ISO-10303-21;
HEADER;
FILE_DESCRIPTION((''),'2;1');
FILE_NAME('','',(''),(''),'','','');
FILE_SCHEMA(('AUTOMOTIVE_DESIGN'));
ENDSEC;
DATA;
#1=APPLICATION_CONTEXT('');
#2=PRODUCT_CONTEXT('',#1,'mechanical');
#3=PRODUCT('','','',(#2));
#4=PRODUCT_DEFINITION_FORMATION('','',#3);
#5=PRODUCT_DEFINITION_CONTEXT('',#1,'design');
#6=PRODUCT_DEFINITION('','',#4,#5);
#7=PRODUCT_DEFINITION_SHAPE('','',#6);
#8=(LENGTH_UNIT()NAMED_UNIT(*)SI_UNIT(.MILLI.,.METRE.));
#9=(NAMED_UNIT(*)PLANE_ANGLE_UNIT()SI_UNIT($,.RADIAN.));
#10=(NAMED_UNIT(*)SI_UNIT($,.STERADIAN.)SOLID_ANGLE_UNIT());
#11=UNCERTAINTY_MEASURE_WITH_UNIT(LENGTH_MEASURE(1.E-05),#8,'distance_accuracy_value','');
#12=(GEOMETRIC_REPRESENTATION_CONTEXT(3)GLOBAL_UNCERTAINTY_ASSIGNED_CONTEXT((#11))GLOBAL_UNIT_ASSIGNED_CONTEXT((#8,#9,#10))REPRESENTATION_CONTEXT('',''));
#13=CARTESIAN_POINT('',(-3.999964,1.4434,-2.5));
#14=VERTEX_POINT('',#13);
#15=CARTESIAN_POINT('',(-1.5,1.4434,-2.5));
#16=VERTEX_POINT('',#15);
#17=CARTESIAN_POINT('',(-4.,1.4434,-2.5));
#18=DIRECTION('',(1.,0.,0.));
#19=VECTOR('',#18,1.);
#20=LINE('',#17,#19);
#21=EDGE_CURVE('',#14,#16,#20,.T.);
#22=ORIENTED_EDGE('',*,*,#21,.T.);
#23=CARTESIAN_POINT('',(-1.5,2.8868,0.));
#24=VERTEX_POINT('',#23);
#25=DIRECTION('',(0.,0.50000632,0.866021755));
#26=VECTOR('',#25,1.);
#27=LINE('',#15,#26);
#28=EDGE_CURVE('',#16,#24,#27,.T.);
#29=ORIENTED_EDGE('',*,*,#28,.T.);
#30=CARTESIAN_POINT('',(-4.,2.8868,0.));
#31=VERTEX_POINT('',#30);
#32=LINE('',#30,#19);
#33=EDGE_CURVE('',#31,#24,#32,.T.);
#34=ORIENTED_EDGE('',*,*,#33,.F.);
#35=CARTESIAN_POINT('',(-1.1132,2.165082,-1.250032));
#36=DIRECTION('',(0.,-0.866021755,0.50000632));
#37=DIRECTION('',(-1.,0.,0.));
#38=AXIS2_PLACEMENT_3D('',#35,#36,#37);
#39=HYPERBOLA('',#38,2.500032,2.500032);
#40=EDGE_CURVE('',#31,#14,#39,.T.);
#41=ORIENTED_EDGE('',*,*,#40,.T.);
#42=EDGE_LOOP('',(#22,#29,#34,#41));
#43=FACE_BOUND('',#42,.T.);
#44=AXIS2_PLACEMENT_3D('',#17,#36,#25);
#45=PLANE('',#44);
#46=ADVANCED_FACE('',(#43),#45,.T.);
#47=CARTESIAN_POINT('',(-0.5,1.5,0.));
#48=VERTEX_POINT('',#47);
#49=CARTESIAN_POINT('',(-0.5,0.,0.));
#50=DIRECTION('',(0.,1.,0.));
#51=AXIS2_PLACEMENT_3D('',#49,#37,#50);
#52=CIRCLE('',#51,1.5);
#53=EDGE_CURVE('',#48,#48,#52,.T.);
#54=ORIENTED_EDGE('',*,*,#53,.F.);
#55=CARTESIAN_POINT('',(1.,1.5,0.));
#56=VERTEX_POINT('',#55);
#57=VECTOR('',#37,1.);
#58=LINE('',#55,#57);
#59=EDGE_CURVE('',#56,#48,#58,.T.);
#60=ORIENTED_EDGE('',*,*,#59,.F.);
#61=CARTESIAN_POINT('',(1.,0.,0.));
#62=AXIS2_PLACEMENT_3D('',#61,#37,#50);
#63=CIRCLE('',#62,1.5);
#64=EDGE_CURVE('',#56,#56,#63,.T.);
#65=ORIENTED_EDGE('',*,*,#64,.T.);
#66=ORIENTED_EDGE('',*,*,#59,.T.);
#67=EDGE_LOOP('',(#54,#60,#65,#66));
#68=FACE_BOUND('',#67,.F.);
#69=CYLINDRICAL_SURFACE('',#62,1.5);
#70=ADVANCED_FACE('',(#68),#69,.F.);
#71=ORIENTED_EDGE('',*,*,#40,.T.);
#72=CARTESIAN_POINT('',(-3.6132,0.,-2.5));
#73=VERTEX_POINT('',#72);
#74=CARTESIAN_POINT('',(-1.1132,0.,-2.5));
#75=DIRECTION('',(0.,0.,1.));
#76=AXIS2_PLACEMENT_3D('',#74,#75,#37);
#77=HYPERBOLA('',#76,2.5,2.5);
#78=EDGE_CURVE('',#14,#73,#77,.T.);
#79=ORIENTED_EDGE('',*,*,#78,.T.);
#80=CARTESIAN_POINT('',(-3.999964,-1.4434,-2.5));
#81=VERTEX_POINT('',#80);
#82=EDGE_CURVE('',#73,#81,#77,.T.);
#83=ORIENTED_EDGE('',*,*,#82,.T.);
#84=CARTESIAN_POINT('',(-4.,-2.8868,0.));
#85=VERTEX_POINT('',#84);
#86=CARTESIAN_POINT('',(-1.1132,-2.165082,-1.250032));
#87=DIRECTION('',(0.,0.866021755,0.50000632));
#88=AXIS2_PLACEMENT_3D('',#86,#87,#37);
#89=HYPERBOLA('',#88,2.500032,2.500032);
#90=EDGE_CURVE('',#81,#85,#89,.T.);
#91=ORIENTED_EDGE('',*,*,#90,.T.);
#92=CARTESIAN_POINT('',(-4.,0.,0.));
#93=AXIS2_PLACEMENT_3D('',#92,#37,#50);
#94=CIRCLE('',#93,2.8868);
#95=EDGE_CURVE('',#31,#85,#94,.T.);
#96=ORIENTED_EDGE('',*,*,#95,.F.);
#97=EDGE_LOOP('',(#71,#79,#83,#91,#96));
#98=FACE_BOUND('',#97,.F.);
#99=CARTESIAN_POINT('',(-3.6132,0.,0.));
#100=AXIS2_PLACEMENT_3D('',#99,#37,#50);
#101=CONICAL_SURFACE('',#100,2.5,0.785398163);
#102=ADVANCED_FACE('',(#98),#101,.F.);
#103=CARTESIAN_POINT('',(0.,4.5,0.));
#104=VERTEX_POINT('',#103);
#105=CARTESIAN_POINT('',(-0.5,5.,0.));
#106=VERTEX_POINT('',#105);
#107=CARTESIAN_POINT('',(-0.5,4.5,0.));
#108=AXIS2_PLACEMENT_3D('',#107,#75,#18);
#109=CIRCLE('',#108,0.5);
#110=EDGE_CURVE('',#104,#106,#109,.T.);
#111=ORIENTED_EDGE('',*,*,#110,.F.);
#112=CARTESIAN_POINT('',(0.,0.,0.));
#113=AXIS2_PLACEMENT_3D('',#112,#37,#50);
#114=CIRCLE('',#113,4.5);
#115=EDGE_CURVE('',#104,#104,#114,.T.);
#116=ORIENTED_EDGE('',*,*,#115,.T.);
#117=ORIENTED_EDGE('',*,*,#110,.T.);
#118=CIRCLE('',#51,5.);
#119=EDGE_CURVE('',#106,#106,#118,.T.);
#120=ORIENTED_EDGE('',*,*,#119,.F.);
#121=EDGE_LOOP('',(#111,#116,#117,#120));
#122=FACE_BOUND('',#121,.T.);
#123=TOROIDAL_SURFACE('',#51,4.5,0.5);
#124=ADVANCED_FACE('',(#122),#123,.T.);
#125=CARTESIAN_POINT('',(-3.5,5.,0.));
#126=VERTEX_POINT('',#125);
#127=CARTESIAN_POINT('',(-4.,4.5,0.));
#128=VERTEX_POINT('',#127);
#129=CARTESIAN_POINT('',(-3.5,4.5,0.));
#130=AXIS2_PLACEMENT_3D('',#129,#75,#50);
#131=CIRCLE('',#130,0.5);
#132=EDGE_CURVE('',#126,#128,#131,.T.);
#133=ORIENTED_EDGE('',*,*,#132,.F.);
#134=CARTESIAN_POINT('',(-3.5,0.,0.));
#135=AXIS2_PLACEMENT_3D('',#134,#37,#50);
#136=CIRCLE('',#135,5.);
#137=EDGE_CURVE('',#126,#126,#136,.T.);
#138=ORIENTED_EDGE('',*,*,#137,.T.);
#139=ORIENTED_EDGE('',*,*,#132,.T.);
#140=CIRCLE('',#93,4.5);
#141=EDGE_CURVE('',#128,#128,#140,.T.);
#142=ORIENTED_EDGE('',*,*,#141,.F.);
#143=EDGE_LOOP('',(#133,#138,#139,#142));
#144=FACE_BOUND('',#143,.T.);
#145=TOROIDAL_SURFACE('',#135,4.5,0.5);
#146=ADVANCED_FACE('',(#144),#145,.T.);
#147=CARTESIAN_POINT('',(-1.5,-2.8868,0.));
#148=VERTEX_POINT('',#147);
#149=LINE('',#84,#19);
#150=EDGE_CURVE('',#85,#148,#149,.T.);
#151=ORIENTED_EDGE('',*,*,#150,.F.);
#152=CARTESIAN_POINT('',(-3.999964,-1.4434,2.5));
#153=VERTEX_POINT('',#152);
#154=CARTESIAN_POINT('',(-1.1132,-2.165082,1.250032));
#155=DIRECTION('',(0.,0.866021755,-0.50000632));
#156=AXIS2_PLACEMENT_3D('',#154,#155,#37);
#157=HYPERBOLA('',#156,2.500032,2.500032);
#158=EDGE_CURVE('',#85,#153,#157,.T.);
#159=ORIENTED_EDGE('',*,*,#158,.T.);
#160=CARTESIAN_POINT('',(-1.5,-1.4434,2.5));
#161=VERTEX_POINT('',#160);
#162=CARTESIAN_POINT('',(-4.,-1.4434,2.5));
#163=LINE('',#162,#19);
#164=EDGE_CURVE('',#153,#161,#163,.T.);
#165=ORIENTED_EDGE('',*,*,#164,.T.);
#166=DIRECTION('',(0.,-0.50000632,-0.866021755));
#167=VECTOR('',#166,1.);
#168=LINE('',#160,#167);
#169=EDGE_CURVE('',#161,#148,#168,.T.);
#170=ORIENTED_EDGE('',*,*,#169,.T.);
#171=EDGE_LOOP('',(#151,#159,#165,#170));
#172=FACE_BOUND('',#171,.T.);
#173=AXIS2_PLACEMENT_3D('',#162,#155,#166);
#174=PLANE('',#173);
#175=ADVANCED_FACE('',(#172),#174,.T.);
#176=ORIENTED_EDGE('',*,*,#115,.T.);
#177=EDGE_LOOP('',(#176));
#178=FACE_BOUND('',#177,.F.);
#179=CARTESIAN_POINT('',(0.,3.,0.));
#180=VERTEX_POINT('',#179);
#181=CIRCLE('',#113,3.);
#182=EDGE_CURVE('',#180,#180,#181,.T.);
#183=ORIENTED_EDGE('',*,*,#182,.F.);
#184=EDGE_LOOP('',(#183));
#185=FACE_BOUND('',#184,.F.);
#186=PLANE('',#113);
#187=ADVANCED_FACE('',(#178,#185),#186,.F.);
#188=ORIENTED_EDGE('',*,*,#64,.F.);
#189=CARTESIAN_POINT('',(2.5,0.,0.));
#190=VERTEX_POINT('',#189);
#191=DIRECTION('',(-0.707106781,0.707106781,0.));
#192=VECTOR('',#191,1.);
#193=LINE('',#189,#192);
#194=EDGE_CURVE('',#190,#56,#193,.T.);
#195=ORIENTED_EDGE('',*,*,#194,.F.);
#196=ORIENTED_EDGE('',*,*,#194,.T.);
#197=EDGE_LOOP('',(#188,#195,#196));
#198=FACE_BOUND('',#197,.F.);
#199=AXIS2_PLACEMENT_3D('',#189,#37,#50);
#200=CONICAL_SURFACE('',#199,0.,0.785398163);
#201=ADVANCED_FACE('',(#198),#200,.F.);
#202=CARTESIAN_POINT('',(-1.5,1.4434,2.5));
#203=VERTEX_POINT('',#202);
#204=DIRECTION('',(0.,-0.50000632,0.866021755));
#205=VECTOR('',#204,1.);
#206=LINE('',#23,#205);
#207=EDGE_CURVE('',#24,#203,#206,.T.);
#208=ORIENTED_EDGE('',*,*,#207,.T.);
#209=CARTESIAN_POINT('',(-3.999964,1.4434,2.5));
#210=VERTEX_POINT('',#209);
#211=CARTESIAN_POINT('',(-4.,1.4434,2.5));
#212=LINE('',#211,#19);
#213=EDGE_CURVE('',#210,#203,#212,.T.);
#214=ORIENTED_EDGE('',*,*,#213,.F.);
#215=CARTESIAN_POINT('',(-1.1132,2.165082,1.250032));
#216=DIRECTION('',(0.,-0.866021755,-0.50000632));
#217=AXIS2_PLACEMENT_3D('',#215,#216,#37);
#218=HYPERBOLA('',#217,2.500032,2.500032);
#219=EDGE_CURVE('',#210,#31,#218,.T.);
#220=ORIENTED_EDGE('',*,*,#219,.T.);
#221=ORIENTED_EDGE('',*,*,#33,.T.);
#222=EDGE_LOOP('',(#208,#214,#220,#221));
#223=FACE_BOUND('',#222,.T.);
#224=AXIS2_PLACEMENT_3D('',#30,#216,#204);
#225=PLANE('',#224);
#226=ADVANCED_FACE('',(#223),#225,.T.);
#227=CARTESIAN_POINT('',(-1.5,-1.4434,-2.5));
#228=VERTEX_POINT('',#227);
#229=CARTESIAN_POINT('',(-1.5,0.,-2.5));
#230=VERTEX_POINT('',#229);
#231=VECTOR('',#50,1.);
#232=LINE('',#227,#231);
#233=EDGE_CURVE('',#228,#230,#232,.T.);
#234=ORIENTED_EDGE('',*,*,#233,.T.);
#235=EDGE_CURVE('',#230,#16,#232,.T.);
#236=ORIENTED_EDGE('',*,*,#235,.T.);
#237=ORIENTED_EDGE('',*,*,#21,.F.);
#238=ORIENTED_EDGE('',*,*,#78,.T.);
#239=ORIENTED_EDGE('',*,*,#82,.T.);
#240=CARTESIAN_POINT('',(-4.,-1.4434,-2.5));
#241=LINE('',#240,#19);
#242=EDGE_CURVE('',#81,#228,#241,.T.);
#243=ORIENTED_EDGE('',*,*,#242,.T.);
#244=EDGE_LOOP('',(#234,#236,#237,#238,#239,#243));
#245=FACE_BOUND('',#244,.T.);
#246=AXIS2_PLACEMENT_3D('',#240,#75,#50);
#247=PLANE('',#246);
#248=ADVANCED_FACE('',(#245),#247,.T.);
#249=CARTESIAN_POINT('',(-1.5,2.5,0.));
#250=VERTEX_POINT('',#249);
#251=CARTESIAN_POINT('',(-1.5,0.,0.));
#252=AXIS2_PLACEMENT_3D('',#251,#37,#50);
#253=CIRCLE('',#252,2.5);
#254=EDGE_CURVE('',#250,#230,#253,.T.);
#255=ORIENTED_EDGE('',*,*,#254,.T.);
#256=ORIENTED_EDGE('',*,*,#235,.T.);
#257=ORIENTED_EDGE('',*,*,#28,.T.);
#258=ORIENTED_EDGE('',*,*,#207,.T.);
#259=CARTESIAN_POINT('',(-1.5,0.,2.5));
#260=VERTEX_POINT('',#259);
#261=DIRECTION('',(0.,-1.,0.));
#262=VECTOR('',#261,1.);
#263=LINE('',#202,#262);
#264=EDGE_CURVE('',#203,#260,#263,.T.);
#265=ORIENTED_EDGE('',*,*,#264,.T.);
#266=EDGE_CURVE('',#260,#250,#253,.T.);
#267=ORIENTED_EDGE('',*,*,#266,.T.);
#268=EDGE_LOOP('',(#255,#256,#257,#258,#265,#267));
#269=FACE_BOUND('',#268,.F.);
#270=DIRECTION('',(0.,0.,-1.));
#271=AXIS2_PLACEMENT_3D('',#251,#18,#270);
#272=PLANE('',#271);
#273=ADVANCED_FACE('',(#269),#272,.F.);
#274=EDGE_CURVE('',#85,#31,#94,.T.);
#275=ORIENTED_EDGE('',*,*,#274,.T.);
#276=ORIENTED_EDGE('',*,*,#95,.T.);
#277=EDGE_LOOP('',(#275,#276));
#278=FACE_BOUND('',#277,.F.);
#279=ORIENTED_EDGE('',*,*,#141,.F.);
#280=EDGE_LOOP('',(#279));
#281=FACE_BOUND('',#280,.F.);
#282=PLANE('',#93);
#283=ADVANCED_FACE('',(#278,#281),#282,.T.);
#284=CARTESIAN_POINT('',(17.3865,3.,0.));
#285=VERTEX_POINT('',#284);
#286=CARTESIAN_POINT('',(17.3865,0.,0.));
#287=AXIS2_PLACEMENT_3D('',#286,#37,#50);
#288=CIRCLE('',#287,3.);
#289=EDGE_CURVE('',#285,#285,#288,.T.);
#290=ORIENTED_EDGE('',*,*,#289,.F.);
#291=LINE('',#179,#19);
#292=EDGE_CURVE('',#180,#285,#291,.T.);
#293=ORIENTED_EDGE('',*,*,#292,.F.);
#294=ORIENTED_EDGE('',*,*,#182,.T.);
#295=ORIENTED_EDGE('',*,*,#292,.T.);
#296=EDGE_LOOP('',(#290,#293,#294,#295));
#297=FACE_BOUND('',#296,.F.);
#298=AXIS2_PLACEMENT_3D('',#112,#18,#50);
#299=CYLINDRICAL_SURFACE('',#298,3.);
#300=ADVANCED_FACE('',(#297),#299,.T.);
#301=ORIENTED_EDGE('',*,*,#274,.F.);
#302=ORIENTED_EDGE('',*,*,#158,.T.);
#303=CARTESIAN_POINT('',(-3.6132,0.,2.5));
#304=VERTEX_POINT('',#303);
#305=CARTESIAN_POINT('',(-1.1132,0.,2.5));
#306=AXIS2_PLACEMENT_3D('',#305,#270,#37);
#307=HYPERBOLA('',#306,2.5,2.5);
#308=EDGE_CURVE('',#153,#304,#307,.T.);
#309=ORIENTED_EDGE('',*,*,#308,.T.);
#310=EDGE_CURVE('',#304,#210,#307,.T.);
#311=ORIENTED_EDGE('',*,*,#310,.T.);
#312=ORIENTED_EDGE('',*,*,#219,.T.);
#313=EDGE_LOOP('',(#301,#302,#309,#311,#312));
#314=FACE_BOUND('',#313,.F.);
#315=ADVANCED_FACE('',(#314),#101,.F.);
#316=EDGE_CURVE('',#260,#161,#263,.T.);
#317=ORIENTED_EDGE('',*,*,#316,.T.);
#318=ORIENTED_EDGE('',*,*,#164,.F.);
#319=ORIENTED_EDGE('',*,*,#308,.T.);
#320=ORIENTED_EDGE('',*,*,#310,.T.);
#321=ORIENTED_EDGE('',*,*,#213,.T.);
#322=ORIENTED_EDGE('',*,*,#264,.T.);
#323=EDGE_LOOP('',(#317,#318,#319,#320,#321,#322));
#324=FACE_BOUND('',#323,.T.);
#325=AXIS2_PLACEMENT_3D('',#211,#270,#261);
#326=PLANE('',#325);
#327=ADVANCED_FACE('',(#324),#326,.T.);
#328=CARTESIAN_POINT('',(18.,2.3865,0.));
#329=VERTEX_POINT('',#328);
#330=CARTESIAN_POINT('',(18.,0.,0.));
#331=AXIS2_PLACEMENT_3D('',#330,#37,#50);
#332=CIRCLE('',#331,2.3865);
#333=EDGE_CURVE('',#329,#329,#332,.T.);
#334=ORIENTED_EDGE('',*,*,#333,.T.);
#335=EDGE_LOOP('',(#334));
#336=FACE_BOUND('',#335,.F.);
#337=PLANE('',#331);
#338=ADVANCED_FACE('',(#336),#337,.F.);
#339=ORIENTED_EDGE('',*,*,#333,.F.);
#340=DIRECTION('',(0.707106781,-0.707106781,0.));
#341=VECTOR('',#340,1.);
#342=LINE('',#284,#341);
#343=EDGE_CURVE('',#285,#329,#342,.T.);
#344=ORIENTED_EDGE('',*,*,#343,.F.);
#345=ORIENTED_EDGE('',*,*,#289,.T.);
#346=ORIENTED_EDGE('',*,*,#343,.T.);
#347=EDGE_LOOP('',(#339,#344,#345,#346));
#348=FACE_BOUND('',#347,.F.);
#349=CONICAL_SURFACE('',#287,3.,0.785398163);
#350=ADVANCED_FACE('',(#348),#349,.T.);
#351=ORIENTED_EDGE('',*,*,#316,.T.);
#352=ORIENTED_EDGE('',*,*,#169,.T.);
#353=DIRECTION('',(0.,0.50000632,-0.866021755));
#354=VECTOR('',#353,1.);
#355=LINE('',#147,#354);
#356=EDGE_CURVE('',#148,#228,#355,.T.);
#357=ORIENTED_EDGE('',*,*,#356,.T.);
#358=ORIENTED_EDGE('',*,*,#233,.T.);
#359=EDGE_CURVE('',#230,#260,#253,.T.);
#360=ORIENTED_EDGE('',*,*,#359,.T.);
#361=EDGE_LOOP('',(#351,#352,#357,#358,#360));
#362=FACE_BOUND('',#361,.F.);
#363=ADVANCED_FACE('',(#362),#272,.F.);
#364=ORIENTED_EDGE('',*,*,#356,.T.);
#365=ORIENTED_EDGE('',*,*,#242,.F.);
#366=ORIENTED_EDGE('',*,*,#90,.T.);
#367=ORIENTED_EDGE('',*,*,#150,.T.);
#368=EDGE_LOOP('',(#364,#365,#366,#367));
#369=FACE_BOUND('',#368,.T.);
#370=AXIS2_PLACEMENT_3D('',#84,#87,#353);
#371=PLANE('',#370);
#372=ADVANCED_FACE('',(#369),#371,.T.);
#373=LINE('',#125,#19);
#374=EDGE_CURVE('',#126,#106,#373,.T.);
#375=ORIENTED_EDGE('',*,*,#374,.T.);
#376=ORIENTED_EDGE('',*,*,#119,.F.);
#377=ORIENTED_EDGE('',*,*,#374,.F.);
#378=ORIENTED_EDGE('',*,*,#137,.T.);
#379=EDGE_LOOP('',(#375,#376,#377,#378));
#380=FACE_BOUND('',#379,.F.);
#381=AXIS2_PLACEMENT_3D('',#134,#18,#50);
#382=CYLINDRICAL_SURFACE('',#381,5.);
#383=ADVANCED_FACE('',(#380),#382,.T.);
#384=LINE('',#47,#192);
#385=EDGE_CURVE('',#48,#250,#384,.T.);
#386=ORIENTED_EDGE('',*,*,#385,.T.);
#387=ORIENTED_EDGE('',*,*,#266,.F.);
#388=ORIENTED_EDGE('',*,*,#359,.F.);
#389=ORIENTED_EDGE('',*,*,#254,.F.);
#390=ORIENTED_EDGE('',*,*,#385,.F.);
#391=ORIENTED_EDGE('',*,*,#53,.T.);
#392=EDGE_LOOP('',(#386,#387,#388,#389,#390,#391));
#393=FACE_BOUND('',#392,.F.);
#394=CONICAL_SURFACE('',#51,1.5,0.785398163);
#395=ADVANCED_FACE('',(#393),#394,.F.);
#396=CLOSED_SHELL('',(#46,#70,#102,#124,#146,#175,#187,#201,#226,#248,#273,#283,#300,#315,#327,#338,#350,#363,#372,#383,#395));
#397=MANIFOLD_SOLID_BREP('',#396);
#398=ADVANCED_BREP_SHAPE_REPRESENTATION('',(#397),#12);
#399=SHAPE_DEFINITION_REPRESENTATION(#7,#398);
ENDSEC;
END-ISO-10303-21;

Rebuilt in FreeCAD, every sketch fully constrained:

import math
import FreeCAD as App
import Part
import Sketcher

V = App.Vector
Q = App.Units.Quantity

doc = App.newDocument("Part")
body = doc.addObject("PartDesign::Body", "Body")

# Sketch on XY plane
sketch1 = body.newObject("Sketcher::SketchObject", "Sketch")
sketch1.AttachmentSupport = (doc.getObject("XY_Plane"), [""])
sketch1.MapMode = "FlatFace"
sketch1.addGeometry([
    Part.LineSegment(V(2.5, 0, 0), V(18, 0, 0)),  # 0
    Part.LineSegment(V(18, 0, 0), V(18, 2.4, 0)),  # 1
    Part.LineSegment(V(18, 2.4, 0), V(17.4, 3, 0)),  # 2
    Part.LineSegment(V(17.4, 3, 0), V(0, 3, 0)),  # 3
    Part.LineSegment(V(0, 3, 0), V(0, 4.5, 0)),  # 4
    Part.ArcOfCircle(Part.Circle(V(-0.5, 4.5, 0), V(0, 0, 1), 0.5), math.radians(0), math.radians(90)),  # 5
    Part.LineSegment(V(-0.5, 5, 0), V(-3.5, 5, 0)),  # 6
    Part.ArcOfCircle(Part.Circle(V(-3.5, 4.5, 0), V(0, 0, 1), 0.5), math.radians(90), math.radians(180)),  # 7
    Part.LineSegment(V(-4, 4.5, 0), V(-4, 2.9, 0)),  # 8
    Part.LineSegment(V(-4, 2.9, 0), V(-3.6, 2.5, 0)),  # 9
    Part.LineSegment(V(-3.6, 2.5, 0), V(-1.5, 2.5, 0)),  # 10
    Part.LineSegment(V(-1.5, 2.5, 0), V(-0.5, 1.5, 0)),  # 11
    Part.LineSegment(V(-0.5, 1.5, 0), V(1, 1.5, 0)),  # 12
    Part.LineSegment(V(1, 1.5, 0), V(2.5, 0, 0)),  # 13
], False)
sketch1.addConstraint([
    Sketcher.Constraint("Coincident", 0, 2, 1, 1),
    Sketcher.Constraint("Coincident", 1, 2, 2, 1),
    Sketcher.Constraint("Coincident", 2, 2, 3, 1),
    Sketcher.Constraint("Coincident", 3, 2, 4, 1),
    Sketcher.Constraint("Tangent", 4, 2, 5, 1),
    Sketcher.Constraint("Tangent", 5, 2, 6, 1),
    Sketcher.Constraint("Tangent", 6, 2, 7, 1),
    Sketcher.Constraint("Tangent", 7, 2, 8, 1),
    Sketcher.Constraint("Coincident", 8, 2, 9, 1),
    Sketcher.Constraint("Coincident", 9, 2, 10, 1),
    Sketcher.Constraint("Coincident", 10, 2, 11, 1),
    Sketcher.Constraint("Coincident", 11, 2, 12, 1),
    Sketcher.Constraint("Coincident", 12, 2, 13, 1),
    Sketcher.Constraint("Coincident", 13, 2, 0, 1),
    Sketcher.Constraint("Horizontal", 0),
    Sketcher.Constraint("Vertical", 1),
    Sketcher.Constraint("Horizontal", 3),
    Sketcher.Constraint("Vertical", 4),
    Sketcher.Constraint("Horizontal", 6),
    Sketcher.Constraint("Vertical", 8),
    Sketcher.Constraint("Horizontal", 10),
    Sketcher.Constraint("Horizontal", 12),
    Sketcher.Constraint("Equal", 5, 7),
    Sketcher.Constraint("PointOnObject", 0, 2, -1),
    Sketcher.Constraint("PointOnObject", 3, 2, -2),
    Sketcher.Constraint("Parallel", 2, 9),
    Sketcher.Constraint("Parallel", 9, 11),
    Sketcher.Constraint("Parallel", 11, 13),
    Sketcher.Constraint("Vertical", 5, 2, 11, 2),
    Sketcher.Constraint("Equal", 12, 4),
    Sketcher.Constraint("Radius", 5, Q("0.5 mm")),
    Sketcher.Constraint("DistanceX", 6, 2, 6, 1, Q("3 mm")),
    Sketcher.Constraint("Angle", 2, Q("135 deg")),
    Sketcher.Constraint("DistanceX", 0, 1, 0, 2, Q("15.5 mm")),
    Sketcher.Constraint("DistanceX", 12, 1, 12, 2, Q("1.5 mm")),
    Sketcher.Constraint("DistanceX", -1, 1, 0, 2, Q("18 mm")),
    Sketcher.Constraint("DistanceY", -1, 1, 2, 2, Q("3 mm")),
    Sketcher.Constraint("DistanceY", 9, 2, 7, 3, Q("2 mm")),
    Sketcher.Constraint("Distance", 9, Q("0.547 mm")),
    Sketcher.Constraint("DistanceX", 3, 2, 3, 1, Q("17.3865 mm")),
])
revolution = body.newObject("PartDesign::Revolution", "Revolution")
revolution.Profile = sketch1
revolution.ReferenceAxis = (sketch1, ["H_Axis"])
revolution.Angle = 360

# Sketch on YZ plane
sketch2 = body.newObject("Sketcher::SketchObject", "Sketch001")
sketch2.AttachmentSupport = (doc.getObject("YZ_Plane"), [""])
sketch2.MapMode = "FlatFace"
sketch2.AttachmentOffset = App.Placement(V(0, 0, -4), App.Rotation())
sketch2.addGeometry([
    Part.LineSegment(V(1.4, 2.5, 0), V(-1.4, 2.5, 0)),  # 0
    Part.LineSegment(V(-1.4, 2.5, 0), V(-2.9, 0, 0)),  # 1
    Part.LineSegment(V(-2.9, 0, 0), V(-1.4, -2.5, 0)),  # 2
    Part.LineSegment(V(-1.4, -2.5, 0), V(1.4, -2.5, 0)),  # 3
    Part.LineSegment(V(1.4, -2.5, 0), V(2.9, 0, 0)),  # 4
    Part.LineSegment(V(2.9, 0, 0), V(1.4, 2.5, 0)),  # 5
], False)
sketch2.addConstraint([
    Sketcher.Constraint("Coincident", 0, 2, 1, 1),
    Sketcher.Constraint("Coincident", 1, 2, 2, 1),
    Sketcher.Constraint("Coincident", 2, 2, 3, 1),
    Sketcher.Constraint("Coincident", 3, 2, 4, 1),
    Sketcher.Constraint("Coincident", 4, 2, 5, 1),
    Sketcher.Constraint("Coincident", 5, 2, 0, 1),
    Sketcher.Constraint("Horizontal", 0),
    Sketcher.Constraint("Horizontal", 3),
    Sketcher.Constraint("Symmetric", 0, 2, 3, 2, -1, 1),
    Sketcher.Constraint("Symmetric", 1, 2, 4, 2, -1, 1),
    Sketcher.Constraint("PointOnObject", 1, 2, -1),
    Sketcher.Constraint("Parallel", 2, 5),
    Sketcher.Constraint("Vertical", 0, 2, 2, 2),
    Sketcher.Constraint("Angle", 1, Q("-120.0004 deg")),
    Sketcher.Constraint("DistanceY", 2, 2, 0, 2, Q("5 mm")),
    Sketcher.Constraint("DistanceX", 0, 2, 0, 1, Q("2.8868 mm")),
])
pocket1 = body.newObject("PartDesign::Pocket", "Pocket")
pocket1.Profile = sketch2
pocket1.Length = 2.5
pocket1.Reversed = True

doc.recompute()
